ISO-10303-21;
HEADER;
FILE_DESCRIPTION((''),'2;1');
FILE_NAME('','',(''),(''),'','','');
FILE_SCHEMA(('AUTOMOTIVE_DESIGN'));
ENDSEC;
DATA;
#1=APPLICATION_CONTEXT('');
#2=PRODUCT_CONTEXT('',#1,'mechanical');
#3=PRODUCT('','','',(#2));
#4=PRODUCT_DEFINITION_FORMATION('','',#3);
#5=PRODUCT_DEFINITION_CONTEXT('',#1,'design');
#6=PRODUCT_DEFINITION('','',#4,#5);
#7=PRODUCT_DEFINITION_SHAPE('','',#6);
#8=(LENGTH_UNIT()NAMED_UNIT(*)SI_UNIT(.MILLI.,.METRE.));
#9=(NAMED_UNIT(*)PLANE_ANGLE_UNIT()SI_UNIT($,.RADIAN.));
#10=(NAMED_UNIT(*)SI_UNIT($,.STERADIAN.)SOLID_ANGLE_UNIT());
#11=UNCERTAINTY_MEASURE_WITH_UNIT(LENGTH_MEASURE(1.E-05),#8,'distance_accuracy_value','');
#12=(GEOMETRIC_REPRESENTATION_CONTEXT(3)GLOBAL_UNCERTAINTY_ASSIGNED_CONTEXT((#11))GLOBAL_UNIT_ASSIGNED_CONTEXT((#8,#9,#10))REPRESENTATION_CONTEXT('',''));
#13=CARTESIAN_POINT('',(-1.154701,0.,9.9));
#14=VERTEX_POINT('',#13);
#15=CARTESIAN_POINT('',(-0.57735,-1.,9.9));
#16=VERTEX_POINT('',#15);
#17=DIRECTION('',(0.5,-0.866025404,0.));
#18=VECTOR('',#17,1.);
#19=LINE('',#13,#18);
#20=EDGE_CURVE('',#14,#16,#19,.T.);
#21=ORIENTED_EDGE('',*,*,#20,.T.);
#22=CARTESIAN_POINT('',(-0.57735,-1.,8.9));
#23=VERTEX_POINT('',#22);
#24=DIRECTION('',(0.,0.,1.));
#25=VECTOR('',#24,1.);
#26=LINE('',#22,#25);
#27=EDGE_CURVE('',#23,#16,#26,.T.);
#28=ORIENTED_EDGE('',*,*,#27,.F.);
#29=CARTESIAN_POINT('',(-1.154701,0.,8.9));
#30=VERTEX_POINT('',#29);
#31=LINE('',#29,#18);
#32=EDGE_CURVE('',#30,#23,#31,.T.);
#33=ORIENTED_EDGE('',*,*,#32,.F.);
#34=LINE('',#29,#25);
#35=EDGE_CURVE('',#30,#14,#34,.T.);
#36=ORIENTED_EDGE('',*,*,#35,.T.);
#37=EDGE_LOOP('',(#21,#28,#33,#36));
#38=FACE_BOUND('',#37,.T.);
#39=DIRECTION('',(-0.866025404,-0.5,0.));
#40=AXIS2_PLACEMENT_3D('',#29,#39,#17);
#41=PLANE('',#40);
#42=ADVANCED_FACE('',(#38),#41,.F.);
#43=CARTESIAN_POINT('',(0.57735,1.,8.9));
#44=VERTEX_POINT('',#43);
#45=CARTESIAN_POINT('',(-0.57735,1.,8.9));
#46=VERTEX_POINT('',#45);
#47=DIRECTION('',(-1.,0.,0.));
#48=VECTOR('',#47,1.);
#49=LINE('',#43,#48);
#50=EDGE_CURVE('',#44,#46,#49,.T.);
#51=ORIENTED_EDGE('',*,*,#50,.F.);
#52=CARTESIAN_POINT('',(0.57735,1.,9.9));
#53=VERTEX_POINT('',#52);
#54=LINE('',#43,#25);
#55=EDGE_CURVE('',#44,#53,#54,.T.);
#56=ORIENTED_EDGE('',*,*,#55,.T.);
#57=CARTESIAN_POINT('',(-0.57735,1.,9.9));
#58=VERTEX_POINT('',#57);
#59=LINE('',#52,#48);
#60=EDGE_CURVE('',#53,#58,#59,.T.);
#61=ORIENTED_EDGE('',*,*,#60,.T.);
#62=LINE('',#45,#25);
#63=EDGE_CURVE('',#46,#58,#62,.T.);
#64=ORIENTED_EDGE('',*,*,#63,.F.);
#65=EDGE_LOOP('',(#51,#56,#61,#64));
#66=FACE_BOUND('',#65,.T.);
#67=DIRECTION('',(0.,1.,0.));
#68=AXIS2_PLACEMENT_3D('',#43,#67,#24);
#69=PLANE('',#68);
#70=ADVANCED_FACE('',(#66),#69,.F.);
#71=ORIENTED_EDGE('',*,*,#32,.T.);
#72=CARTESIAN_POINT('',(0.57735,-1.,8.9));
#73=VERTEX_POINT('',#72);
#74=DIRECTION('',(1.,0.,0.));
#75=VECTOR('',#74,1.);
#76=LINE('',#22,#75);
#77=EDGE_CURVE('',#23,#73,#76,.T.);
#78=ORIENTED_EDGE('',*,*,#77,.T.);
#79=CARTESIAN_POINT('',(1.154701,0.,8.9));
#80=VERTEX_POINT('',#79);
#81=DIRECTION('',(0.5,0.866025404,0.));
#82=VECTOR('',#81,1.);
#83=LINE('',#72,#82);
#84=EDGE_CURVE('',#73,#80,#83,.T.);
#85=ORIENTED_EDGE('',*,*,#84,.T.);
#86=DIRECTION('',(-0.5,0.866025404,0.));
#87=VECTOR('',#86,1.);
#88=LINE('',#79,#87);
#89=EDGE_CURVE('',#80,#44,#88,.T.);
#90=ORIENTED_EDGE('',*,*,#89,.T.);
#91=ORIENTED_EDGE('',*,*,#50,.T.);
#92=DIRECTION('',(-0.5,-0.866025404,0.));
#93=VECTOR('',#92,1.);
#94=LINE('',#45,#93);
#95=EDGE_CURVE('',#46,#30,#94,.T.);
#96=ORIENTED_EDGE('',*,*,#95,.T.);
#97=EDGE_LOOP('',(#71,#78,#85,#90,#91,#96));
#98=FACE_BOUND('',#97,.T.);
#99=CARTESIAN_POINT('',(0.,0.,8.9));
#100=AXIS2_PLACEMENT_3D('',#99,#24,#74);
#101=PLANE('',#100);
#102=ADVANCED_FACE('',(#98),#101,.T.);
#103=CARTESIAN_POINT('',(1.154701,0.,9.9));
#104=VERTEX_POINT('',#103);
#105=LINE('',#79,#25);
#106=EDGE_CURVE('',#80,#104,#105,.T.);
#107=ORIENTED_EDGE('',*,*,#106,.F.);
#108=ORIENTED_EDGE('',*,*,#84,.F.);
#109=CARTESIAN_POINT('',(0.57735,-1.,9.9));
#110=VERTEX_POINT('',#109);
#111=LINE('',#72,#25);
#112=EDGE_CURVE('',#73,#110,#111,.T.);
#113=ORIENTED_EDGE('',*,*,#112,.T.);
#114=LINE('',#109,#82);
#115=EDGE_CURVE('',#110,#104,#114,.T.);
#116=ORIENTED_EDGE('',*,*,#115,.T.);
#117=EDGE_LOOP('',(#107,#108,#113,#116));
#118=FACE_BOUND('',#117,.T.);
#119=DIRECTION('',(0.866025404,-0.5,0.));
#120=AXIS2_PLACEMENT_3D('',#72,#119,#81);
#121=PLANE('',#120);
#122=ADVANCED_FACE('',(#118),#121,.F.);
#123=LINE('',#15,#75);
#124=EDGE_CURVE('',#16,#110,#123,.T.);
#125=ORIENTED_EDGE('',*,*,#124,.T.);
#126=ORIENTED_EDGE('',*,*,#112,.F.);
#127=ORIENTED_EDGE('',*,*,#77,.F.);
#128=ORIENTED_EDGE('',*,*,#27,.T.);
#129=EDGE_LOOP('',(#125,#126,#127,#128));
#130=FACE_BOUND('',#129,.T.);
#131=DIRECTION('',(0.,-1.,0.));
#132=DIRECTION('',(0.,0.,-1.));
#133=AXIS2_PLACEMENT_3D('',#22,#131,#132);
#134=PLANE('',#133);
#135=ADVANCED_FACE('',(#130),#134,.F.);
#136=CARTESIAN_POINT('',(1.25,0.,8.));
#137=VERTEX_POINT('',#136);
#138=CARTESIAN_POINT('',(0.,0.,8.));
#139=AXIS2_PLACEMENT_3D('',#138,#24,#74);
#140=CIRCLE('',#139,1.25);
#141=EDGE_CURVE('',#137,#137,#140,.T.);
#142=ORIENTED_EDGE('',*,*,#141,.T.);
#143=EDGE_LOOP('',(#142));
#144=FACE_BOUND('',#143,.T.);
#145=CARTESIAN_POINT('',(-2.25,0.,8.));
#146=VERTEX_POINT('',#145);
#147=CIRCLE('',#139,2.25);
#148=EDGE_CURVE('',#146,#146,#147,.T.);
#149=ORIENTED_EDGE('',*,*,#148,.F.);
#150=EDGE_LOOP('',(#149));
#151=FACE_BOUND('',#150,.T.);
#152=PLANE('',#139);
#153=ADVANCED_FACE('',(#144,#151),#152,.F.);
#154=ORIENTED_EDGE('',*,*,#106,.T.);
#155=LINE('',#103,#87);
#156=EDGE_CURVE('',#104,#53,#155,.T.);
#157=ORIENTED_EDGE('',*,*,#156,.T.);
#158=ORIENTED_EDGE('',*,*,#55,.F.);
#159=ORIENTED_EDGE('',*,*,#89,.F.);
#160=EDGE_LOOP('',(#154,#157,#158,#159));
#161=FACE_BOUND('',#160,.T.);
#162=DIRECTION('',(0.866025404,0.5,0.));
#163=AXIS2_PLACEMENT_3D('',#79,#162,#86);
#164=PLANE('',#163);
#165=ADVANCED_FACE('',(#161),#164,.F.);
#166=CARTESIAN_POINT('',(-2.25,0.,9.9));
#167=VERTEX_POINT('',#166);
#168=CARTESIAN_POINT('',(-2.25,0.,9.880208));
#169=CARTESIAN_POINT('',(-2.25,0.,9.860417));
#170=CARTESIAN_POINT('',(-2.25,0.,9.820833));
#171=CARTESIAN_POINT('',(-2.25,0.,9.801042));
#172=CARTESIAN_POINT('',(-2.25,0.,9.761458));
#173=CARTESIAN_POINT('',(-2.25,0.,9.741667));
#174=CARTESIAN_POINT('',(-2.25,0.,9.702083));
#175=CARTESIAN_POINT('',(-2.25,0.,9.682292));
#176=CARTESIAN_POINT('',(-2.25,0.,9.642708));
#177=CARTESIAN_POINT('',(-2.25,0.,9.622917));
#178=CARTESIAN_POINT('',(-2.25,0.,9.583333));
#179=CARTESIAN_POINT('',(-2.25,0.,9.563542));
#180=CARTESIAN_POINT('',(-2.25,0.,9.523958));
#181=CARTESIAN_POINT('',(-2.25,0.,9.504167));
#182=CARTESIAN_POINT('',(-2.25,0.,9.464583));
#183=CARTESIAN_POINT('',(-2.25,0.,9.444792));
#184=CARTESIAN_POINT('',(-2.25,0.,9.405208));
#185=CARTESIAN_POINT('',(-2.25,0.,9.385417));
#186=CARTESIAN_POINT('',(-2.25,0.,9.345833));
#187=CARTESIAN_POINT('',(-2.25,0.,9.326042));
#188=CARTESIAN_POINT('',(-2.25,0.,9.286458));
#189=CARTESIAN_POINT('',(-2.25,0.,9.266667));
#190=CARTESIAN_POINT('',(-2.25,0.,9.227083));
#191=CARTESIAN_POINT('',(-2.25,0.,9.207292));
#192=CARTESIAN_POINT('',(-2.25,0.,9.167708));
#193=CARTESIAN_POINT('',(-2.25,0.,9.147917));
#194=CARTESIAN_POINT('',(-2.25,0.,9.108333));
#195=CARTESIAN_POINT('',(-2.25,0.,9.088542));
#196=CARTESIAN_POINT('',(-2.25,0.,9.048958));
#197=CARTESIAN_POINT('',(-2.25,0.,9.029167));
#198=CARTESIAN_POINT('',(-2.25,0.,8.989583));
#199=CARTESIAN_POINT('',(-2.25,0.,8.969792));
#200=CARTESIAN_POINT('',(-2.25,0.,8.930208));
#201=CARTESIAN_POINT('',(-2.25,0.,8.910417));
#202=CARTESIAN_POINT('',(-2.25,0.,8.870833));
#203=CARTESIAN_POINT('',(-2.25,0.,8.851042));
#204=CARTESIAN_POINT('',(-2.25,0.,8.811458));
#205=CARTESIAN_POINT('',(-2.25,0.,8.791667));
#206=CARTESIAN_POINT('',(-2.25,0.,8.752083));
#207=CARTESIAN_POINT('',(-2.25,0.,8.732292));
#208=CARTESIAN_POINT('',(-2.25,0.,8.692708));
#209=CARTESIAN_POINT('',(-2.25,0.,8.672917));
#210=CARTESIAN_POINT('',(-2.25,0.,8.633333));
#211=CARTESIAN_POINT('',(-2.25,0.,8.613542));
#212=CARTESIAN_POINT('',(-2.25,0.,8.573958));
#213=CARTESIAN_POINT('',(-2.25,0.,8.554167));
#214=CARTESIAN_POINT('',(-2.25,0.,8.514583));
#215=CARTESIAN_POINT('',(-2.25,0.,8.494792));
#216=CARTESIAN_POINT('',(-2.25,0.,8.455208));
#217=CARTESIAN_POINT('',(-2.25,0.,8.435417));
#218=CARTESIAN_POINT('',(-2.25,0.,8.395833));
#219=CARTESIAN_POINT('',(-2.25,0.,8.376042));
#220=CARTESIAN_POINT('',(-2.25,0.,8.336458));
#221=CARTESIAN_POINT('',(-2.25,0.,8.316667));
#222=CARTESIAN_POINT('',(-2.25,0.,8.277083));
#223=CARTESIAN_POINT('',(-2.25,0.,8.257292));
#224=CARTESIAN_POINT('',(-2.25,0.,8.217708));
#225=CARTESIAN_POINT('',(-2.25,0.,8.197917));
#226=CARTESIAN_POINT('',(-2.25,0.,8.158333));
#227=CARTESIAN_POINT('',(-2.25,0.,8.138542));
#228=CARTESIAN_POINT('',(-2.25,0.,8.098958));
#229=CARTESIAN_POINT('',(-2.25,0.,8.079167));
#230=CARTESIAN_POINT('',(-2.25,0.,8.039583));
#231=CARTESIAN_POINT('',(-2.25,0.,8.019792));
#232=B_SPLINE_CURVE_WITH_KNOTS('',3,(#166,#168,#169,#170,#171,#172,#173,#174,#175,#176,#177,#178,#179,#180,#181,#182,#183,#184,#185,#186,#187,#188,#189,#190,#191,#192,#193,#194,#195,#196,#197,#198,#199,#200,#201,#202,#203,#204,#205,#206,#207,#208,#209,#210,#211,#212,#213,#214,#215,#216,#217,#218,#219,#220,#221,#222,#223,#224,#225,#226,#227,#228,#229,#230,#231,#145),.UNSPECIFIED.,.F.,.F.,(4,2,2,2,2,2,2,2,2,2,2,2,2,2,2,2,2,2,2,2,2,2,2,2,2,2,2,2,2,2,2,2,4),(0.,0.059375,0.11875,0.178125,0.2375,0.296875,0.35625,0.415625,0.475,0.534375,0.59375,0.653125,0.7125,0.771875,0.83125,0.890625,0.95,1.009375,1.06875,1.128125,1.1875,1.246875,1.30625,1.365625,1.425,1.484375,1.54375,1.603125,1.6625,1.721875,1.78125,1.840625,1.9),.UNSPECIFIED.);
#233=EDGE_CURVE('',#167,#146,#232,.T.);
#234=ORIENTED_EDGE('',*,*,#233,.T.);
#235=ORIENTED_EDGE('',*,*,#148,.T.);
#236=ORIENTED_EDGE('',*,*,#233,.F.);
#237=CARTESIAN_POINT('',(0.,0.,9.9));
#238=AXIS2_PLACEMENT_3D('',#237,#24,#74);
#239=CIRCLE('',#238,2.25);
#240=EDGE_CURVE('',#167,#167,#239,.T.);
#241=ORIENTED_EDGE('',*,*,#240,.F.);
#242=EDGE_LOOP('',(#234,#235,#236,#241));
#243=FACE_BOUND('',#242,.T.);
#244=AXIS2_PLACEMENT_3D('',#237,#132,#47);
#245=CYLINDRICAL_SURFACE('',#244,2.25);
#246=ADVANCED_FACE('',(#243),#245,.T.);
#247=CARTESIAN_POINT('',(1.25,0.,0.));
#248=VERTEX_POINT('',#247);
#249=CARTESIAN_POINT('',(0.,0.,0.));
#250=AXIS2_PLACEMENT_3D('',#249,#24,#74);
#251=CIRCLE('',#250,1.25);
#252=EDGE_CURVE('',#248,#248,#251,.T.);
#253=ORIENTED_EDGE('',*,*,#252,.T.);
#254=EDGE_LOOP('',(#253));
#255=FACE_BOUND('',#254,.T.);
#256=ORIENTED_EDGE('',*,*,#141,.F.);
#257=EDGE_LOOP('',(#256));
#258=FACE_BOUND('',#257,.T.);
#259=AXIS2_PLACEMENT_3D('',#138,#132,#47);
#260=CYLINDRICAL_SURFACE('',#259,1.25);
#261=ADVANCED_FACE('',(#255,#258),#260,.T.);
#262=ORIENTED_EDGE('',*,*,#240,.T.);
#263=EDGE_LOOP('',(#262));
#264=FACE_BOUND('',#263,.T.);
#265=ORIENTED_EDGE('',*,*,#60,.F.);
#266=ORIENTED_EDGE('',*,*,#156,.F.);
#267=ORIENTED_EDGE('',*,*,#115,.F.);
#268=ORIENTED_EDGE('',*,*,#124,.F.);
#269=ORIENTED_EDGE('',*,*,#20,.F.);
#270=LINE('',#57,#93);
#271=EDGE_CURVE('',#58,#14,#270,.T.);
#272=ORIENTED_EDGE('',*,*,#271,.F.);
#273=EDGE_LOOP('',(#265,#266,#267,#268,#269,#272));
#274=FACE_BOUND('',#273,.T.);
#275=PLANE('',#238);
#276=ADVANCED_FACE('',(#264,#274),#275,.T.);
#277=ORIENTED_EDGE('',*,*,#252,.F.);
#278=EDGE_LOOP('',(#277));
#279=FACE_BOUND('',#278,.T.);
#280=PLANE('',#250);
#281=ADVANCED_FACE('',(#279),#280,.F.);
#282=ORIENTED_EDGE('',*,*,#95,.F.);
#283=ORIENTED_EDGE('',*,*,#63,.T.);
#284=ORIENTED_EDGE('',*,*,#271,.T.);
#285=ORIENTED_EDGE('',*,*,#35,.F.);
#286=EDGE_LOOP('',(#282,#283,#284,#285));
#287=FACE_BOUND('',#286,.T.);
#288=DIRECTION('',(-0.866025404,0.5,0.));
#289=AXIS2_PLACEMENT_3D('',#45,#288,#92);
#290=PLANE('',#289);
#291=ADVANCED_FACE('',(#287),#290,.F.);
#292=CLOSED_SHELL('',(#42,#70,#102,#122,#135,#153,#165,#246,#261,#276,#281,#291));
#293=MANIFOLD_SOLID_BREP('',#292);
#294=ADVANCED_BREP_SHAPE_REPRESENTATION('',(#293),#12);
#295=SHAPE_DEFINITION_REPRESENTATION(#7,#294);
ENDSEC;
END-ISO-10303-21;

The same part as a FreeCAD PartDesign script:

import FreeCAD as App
import Part
import Sketcher

V = App.Vector
Q = App.Units.Quantity

doc = App.newDocument("Part")
body = doc.addObject("PartDesign::Body", "Body")

# Sketch on XY plane
sketch1 = body.newObject("Sketcher::SketchObject", "Sketch")
sketch1.AttachmentSupport = (doc.getObject("XY_Plane"), [""])
sketch1.MapMode = "FlatFace"
sketch1.addGeometry(Part.Circle(V(0, 0, 0), V(0, 0, 1), 1.2), False)
sketch1.addConstraint(Sketcher.Constraint("Coincident", 0, 3, -1, 1))
sketch1.addConstraint(Sketcher.Constraint("Diameter", 0, Q("2.5 mm")))
pad1 = body.newObject("PartDesign::Pad", "Pad")
pad1.Profile = sketch1
pad1.Length = 8

# Sketch on XY plane
sketch2 = body.newObject("Sketcher::SketchObject", "Sketch001")
sketch2.AttachmentSupport = (doc.getObject("XY_Plane"), [""])
sketch2.MapMode = "FlatFace"
sketch2.AttachmentOffset = App.Placement(V(0, 0, 8), App.Rotation())
sketch2.addGeometry(Part.Circle(V(0, 0, 0), V(0, 0, 1), 2.2), False)
sketch2.addConstraint(Sketcher.Constraint("Coincident", 0, 3, -1, 1))
sketch2.addConstraint(Sketcher.Constraint("Diameter", 0, Q("4.5 mm")))
pad2 = body.newObject("PartDesign::Pad", "Pad001")
pad2.Profile = sketch2
pad2.Length = 1.9

# Sketch on XY plane
sketch3 = body.newObject("Sketcher::SketchObject", "Sketch002")
sketch3.AttachmentSupport = (doc.getObject("XY_Plane"), [""])
sketch3.MapMode = "FlatFace"
sketch3.AttachmentOffset = App.Placement(V(0, 0, 9.9), App.Rotation())
sketch3.addGeometry(Part.LineSegment(V(1.2, 0, 0), V(0.6, 1, 0)), False)
sketch3.addGeometry(Part.LineSegment(V(0.6, 1, 0), V(-0.6, 1, 0)), False)
sketch3.addGeometry(Part.LineSegment(V(-0.6, 1, 0), V(-1.2, 0, 0)), False)
sketch3.addGeometry(Part.LineSegment(V(-1.2, 0, 0), V(-0.6, -1, 0)), False)
sketch3.addGeometry(Part.LineSegment(V(-0.6, -1, 0), V(0.6, -1, 0)), False)
sketch3.addGeometry(Part.LineSegment(V(0.6, -1, 0), V(1.2, 0, 0)), False)
sketch3.addConstraint(Sketcher.Constraint("Coincident", 0, 2, 1, 1))
sketch3.addConstraint(Sketcher.Constraint("Coincident", 1, 2, 2, 1))
sketch3.addConstraint(Sketcher.Constraint("Coincident", 2, 2, 3, 1))
sketch3.addConstraint(Sketcher.Constraint("Coincident", 3, 2, 4, 1))
sketch3.addConstraint(Sketcher.Constraint("Coincident", 4, 2, 5, 1))
sketch3.addConstraint(Sketcher.Constraint("Coincident", 5, 2, 0, 1))
sketch3.addConstraint(Sketcher.Constraint("Horizontal", 1))
sketch3.addConstraint(Sketcher.Constraint("Horizontal", 4))
sketch3.addConstraint(Sketcher.Constraint("Symmetric", 0, 2, 3, 2, -1, 1))
sketch3.addConstraint(Sketcher.Constraint("Symmetric", 2, 2, 5, 2, -1, 1))
sketch3.addConstraint(Sketcher.Constraint("PointOnObject", 2, 2, -1))
sketch3.addConstraint(Sketcher.Constraint("Parallel", 2, 5))
sketch3.addConstraint(Sketcher.Constraint("Vertical", 1, 2, 3, 2))
sketch3.addConstraint(Sketcher.Constraint("Angle", 0, Q("120 deg")))
sketch3.addConstraint(Sketcher.Constraint("DistanceY", -1, 1, 0, 2, Q("1 mm")))
sketch3.addConstraint(Sketcher.Constraint("DistanceX", 1, 2, 1, 1, Q("1.154701 mm")))
pocket1 = body.newObject("PartDesign::Pocket", "Pocket")
pocket1.Profile = sketch3
pocket1.Length = 1

doc.recompute()
